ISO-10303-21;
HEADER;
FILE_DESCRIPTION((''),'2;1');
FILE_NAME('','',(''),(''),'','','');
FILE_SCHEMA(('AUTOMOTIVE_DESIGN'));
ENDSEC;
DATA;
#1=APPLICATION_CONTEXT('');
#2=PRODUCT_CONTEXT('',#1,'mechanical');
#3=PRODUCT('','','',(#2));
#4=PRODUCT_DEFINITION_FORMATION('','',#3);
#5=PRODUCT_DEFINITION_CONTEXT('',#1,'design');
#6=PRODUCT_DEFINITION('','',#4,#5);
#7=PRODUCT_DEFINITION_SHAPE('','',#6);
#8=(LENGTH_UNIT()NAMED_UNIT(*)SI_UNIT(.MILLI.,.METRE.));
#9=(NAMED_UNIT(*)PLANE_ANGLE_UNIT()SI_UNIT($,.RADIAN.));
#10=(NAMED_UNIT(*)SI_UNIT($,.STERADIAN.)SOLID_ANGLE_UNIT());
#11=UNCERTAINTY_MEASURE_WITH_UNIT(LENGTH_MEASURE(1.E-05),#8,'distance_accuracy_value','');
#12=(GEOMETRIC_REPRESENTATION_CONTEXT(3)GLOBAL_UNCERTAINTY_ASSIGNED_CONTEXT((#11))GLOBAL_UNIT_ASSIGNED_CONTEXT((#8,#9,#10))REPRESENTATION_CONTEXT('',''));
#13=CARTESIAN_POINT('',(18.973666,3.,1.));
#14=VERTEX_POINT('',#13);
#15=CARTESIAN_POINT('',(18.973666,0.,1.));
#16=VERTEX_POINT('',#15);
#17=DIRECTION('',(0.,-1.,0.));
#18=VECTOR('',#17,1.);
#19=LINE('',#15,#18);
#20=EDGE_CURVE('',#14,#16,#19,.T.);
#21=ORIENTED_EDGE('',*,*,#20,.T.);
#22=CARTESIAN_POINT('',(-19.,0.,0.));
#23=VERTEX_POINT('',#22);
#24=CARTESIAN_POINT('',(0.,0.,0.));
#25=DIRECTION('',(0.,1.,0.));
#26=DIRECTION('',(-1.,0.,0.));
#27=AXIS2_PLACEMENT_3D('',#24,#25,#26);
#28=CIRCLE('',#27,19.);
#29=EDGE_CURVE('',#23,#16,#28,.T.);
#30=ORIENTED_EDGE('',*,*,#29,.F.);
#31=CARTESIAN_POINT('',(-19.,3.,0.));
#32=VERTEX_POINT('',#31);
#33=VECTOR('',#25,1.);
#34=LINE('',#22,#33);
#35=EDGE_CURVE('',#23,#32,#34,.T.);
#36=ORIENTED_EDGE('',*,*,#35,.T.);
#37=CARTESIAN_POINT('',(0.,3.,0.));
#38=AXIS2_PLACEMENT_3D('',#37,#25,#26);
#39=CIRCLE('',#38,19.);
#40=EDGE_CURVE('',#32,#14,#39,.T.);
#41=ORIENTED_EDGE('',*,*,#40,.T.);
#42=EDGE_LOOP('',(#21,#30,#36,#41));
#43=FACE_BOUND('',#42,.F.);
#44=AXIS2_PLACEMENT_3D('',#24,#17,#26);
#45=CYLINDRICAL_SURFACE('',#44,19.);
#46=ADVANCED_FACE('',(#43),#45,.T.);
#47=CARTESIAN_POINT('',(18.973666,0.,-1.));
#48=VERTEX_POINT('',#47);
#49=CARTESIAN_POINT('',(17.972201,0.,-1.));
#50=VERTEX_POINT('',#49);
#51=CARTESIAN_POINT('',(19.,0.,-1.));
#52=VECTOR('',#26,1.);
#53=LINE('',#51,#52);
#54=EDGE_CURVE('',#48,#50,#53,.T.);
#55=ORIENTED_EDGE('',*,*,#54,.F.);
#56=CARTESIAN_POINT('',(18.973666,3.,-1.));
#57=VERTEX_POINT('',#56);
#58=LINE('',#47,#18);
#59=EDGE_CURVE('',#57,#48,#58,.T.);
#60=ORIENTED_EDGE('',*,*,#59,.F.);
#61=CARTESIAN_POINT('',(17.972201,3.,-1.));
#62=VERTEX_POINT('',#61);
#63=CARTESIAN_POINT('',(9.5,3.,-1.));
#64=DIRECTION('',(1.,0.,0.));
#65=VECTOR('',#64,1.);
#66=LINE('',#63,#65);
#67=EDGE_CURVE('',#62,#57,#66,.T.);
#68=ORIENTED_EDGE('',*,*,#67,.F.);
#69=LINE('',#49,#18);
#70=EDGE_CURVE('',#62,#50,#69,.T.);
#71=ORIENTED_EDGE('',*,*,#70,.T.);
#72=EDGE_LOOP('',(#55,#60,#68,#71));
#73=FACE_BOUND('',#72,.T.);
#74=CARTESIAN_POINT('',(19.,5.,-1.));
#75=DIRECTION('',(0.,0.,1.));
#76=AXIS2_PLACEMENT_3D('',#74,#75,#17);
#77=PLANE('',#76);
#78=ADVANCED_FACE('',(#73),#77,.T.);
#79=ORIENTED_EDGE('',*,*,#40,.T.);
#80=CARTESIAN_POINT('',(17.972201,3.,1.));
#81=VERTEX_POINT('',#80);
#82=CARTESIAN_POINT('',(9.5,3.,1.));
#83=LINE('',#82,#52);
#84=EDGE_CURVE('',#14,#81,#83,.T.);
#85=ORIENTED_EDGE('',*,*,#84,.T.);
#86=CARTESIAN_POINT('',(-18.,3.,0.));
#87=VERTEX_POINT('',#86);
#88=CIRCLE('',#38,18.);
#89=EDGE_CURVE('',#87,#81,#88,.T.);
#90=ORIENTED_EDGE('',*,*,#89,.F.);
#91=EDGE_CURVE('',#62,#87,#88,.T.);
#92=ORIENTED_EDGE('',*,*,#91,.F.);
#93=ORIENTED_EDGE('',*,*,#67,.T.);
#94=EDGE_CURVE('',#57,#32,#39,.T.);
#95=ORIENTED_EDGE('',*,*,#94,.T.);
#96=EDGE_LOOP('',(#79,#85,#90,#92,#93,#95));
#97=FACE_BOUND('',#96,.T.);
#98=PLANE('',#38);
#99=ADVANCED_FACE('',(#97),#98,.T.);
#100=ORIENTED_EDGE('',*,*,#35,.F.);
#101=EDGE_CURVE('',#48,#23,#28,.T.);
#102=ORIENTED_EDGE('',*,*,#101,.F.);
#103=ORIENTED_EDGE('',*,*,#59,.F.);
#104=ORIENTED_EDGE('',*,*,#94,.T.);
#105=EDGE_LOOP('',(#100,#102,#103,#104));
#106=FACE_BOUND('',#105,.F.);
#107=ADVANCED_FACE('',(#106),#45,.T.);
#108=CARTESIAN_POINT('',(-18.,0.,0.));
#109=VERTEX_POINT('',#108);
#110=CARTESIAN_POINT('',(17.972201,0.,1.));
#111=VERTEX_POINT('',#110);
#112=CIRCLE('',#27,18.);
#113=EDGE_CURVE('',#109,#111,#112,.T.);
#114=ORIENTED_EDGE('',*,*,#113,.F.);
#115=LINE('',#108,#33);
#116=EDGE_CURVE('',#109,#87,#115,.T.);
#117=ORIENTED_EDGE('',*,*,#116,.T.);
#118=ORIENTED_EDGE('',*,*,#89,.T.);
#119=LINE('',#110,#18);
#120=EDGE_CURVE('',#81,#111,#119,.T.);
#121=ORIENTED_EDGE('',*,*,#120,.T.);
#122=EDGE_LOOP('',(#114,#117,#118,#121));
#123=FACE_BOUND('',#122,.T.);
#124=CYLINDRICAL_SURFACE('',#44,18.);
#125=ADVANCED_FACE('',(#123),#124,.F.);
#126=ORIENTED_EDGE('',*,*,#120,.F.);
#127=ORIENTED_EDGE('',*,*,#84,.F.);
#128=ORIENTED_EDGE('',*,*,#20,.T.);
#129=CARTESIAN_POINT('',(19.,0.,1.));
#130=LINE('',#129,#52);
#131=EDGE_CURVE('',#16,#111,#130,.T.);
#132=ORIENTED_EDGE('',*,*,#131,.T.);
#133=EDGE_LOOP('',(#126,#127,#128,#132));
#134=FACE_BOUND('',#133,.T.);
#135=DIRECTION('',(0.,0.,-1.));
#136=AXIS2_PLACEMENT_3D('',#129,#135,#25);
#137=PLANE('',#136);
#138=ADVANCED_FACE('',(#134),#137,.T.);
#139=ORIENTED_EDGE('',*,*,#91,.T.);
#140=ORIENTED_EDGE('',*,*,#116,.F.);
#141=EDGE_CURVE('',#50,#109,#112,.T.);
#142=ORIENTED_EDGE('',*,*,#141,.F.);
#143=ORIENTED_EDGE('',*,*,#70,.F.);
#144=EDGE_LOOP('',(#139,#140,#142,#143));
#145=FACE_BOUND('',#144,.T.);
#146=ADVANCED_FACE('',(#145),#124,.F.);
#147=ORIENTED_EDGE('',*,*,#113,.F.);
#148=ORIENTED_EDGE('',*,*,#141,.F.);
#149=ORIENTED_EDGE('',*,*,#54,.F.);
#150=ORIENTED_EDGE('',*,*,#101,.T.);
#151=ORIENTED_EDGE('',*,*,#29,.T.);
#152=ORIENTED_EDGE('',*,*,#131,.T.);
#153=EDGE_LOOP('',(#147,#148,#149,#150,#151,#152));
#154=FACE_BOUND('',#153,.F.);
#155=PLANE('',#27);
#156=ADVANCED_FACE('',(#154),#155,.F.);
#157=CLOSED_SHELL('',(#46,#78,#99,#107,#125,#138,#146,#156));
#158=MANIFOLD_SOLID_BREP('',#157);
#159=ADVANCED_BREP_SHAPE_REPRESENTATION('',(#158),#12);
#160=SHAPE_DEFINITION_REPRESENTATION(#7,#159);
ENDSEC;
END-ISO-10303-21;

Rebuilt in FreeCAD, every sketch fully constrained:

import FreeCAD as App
import Part
import Sketcher

doc = App.newDocument("Part")
body = doc.addObject("PartDesign::Body", "Body")

sketch1 = body.newObject("Sketcher::SketchObject", "Sketch")
sketch1.AttachmentSupport = (doc.getObject("XZ_Plane"), [""])
sketch1.MapMode = "FlatFace"
sketch1.addGeometry([
    Part.Circle(App.Vector(0, 0, 0), App.Vector(0, 0, 1), 19),
    Part.Circle(App.Vector(0, 0, 0), App.Vector(0, 0, 1), 18),
], False)
sketch1.addConstraint([
    Sketcher.Constraint("Coincident", 0, 3, -1, 1),
    Sketcher.Constraint("Coincident", 1, 3, -1, 1),
    Sketcher.Constraint("Diameter", 0, 38.0),
    Sketcher.Constraint("Diameter", 1, 36.0),
])
pad1 = body.newObject("PartDesign::Pad", "Pad")
pad1.Profile = sketch1
pad1.Length = 3
pad1.Reversed = True

sketch2 = body.newObject("Sketcher::SketchObject", "Sketch001")
sketch2.AttachmentSupport = (doc.getObject("YZ_Plane"), [""])
sketch2.MapMode = "FlatFace"
sketch2.AttachmentOffset = App.Placement(App.Vector(0, 0, 19), App.Rotation())
sketch2.addGeometry([
    Part.LineSegment(App.Vector(5, 1, 0), App.Vector(0, 1, 0)),
    Part.LineSegment(App.Vector(0, 1, 0), App.Vector(0, -1, 0)),
    Part.LineSegment(App.Vector(0, -1, 0), App.Vector(5, -1, 0)),
    Part.LineSegment(App.Vector(5, -1, 0), App.Vector(5, 1, 0)),
], False)
sketch2.addConstraint([
    Sketcher.Constraint("Coincident", 0, 2, 1, 1),
    Sketcher.Constraint("Coincident", 1, 2, 2, 1),
    Sketcher.Constraint("Coincident", 2, 2, 3, 1),
    Sketcher.Constraint("Coincident", 3, 2, 0, 1),
    Sketcher.Constraint("Horizontal", 0),
    Sketcher.Constraint("Vertical", 1),
    Sketcher.Constraint("Horizontal", 2),
    Sketcher.Constraint("Vertical", 3),
    Sketcher.Constraint("Symmetric", 0, 2, 1, 2, -1, 1),
    Sketcher.Constraint("DistanceX", 0, 2, 0, 1, 5.0),
    Sketcher.Constraint("DistanceY", -1, 1, 0, 2, 1.0),
])
pocket1 = body.newObject("PartDesign::Pocket", "Pocket")
pocket1.Profile = sketch2
pocket1.Length = 5

doc.recompute()
